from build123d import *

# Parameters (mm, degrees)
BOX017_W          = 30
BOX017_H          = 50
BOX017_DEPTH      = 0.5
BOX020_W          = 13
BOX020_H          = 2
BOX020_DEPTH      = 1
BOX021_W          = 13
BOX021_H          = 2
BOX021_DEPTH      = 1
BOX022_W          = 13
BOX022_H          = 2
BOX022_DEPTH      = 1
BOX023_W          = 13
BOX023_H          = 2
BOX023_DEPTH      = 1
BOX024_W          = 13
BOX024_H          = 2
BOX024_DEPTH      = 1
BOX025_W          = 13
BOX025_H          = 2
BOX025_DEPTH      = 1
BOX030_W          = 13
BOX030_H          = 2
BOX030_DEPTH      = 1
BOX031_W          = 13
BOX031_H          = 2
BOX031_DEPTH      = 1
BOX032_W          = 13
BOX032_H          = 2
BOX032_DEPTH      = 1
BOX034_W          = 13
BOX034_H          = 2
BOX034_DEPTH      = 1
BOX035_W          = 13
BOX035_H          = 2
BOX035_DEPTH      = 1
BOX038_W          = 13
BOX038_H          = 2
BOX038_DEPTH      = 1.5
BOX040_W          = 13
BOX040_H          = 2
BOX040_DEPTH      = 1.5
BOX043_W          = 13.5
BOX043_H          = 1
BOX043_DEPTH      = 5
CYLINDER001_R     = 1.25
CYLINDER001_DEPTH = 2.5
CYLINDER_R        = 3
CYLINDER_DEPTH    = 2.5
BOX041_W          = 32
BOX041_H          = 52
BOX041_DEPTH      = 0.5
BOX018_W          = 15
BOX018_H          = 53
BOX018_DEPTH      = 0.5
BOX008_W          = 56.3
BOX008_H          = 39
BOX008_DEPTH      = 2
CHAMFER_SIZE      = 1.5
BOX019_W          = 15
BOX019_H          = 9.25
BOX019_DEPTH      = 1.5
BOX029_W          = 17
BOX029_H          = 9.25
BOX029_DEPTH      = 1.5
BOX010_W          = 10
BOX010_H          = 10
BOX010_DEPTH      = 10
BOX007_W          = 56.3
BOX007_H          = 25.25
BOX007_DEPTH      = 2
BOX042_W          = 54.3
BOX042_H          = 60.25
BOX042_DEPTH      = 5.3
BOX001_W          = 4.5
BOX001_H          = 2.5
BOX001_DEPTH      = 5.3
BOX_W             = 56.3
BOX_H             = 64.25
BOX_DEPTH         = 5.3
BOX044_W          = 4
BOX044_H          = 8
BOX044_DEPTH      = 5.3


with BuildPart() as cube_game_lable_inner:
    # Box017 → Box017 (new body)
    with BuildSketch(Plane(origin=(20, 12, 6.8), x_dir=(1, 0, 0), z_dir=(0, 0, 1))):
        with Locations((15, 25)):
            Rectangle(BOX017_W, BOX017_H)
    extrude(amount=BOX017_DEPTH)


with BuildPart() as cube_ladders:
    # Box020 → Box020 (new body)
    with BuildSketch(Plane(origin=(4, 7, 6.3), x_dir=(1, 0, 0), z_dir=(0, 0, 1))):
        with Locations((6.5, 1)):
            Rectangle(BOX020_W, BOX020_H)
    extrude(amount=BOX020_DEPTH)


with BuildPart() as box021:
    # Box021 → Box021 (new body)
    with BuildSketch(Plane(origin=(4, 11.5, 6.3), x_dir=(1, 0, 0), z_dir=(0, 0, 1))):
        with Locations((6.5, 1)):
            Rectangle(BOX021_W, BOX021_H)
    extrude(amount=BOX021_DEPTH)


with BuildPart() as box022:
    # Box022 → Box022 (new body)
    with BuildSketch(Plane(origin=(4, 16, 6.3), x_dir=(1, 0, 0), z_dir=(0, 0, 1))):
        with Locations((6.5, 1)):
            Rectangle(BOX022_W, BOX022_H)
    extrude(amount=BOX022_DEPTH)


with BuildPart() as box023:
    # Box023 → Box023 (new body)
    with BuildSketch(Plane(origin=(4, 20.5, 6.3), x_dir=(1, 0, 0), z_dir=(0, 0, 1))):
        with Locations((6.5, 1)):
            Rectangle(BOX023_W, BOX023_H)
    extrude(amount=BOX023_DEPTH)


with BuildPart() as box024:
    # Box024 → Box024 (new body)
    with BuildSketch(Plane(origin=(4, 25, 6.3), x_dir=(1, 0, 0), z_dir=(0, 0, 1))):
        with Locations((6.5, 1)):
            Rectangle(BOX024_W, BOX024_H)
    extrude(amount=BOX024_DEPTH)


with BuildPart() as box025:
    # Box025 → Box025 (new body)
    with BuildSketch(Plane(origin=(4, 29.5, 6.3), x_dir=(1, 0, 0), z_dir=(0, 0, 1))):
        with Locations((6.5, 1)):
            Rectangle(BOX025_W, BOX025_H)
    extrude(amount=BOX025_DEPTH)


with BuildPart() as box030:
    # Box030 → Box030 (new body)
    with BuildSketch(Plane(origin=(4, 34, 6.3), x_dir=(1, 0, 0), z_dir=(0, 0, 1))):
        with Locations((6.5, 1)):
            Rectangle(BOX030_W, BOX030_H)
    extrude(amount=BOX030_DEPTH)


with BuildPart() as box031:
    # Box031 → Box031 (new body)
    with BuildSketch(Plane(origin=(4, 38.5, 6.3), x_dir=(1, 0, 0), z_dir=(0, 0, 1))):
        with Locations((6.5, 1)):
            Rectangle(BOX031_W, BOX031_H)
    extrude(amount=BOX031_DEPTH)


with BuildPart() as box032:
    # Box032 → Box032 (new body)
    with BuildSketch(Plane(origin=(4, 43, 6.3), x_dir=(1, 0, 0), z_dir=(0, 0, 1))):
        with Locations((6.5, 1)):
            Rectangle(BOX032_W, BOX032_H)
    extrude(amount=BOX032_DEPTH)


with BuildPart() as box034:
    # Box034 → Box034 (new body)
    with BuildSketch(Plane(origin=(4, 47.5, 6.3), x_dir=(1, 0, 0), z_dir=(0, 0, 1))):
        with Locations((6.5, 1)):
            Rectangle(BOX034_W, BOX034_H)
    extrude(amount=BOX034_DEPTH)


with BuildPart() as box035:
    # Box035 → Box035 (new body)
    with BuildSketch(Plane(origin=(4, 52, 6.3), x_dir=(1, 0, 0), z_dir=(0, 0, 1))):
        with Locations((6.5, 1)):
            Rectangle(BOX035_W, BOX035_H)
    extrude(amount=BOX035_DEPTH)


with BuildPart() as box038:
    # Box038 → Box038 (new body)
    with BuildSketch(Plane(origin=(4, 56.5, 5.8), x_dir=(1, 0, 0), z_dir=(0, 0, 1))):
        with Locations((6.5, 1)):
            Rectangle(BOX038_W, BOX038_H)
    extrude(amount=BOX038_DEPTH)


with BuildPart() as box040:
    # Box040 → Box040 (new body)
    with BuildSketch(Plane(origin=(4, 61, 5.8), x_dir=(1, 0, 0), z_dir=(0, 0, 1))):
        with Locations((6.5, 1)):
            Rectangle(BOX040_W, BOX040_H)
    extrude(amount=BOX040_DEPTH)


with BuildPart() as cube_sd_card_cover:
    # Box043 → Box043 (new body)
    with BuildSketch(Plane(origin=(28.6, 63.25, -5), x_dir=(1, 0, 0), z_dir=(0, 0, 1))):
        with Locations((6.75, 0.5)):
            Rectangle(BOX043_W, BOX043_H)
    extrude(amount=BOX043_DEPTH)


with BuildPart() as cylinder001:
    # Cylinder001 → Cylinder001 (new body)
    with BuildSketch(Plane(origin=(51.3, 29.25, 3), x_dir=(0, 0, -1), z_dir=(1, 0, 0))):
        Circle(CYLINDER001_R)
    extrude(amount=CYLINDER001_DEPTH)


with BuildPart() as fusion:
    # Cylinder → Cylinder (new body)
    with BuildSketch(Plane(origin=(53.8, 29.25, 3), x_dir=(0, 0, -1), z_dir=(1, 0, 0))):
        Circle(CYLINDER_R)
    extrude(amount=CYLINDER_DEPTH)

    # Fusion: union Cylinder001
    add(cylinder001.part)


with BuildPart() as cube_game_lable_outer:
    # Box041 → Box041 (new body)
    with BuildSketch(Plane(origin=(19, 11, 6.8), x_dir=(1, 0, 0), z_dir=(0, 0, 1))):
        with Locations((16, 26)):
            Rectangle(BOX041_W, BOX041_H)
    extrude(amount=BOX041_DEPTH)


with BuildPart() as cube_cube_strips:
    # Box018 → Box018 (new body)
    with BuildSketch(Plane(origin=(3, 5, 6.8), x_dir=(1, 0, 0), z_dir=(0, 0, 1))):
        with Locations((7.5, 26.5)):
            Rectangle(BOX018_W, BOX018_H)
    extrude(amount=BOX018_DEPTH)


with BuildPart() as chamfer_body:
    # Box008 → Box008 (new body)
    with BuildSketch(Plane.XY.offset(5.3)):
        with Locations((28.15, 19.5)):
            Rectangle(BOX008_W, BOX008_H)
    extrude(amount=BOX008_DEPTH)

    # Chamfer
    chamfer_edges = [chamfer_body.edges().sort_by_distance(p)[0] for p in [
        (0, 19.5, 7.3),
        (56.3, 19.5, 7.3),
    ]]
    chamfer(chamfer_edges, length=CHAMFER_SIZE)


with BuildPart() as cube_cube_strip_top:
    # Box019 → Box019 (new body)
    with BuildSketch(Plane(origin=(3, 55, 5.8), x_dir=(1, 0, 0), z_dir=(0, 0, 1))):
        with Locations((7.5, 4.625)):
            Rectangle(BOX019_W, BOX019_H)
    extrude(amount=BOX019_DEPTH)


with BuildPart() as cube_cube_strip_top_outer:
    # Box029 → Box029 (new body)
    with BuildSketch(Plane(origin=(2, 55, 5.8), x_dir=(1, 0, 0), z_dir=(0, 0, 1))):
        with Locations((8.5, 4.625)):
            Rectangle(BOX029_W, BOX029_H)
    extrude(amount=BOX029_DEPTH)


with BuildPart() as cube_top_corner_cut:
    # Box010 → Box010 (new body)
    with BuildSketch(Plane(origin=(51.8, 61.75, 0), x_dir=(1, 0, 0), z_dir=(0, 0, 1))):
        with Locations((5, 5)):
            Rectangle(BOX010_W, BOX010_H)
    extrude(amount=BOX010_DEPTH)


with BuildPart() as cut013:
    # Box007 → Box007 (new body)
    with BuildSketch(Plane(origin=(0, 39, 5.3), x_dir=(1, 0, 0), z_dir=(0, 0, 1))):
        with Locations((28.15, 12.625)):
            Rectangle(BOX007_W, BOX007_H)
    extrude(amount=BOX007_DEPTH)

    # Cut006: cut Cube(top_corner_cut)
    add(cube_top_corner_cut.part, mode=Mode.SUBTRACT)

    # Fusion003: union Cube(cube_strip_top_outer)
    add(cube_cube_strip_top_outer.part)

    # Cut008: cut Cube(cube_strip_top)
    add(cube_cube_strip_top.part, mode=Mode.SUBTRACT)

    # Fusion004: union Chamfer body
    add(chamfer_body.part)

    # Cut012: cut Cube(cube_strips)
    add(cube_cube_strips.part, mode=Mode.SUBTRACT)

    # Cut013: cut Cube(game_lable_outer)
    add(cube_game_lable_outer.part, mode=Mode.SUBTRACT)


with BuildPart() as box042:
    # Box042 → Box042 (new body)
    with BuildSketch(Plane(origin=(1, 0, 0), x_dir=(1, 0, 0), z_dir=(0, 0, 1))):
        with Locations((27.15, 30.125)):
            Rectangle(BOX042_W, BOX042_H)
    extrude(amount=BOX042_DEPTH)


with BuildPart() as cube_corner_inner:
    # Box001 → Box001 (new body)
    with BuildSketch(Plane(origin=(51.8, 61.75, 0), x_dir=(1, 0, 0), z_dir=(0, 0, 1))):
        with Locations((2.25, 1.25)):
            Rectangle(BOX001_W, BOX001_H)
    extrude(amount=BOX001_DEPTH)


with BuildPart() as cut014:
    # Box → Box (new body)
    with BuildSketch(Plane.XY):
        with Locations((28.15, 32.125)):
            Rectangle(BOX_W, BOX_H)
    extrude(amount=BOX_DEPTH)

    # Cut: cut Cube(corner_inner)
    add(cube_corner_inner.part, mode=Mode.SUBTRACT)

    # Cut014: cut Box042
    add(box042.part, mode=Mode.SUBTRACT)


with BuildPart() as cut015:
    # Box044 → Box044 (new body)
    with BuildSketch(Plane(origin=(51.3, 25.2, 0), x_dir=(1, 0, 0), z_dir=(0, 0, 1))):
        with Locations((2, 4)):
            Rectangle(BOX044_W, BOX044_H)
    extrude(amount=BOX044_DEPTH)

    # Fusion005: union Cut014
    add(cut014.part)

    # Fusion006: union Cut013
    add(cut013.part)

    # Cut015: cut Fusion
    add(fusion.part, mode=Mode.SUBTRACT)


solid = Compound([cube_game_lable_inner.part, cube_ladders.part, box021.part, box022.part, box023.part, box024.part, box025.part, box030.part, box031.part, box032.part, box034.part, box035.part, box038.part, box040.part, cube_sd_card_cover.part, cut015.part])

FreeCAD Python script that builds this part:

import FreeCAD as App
import Part
import Sketcher
Q = App.Units.Quantity


def edges_at(feature, points):
    """Names of the edges that pass closest to the given points."""
    edges = feature.Shape.Edges
    near = lambda p: min(range(len(edges)), key=lambda i: edges[i].distToShape(Part.Vertex(*p))[0])
    return sorted({f"Edge{near(p) + 1}" for p in points})

doc = App.newDocument("Part")
body = doc.addObject("PartDesign::Body", "Body")

sketch1 = body.newObject("Sketcher::SketchObject", "Sketch")
sketch1.AttachmentSupport = (doc.getObject("XY_Plane"), [""])
sketch1.MapMode = "FlatFace"
sketch1.AttachmentOffset = App.Placement(App.Vector(0, 0, 6.8), App.Rotation())
sketch1.addGeometry([
    Part.LineSegment(App.Vector(20, 62, 0), App.Vector(20, 12, 0)),
    Part.LineSegment(App.Vector(20, 12, 0), App.Vector(50, 12, 0)),
    Part.LineSegment(App.Vector(50, 12, 0), App.Vector(50, 62, 0)),
    Part.LineSegment(App.Vector(50, 62, 0), App.Vector(20, 62, 0)),
], False)
sketch1.addConstraint([
    Sketcher.Constraint("Coincident", 0, 2, 1, 1),
    Sketcher.Constraint("Coincident", 1, 2, 2, 1),
    Sketcher.Constraint("Coincident", 2, 2, 3, 1),
    Sketcher.Constraint("Coincident", 3, 2, 0, 1),
    Sketcher.Constraint("Vertical", 0),
    Sketcher.Constraint("Horizontal", 1),
    Sketcher.Constraint("Vertical", 2),
    Sketcher.Constraint("Horizontal", 3),
    Sketcher.Constraint("DistanceX", 1, 1, 1, 2, Q("30 mm")),
    Sketcher.Constraint("DistanceY", 0, 2, 0, 1, Q("50 mm")),
    Sketcher.Constraint("DistanceX", -1, 1, 0, 2, Q("20 mm")),
    Sketcher.Constraint("DistanceY", -1, 1, 0, 2, Q("12 mm")),
])
pad1 = body.newObject("PartDesign::Pad", "Pad")
pad1.Profile = sketch1
pad1.Length = 0.5
body2 = doc.addObject("PartDesign::Body", "Body001")

sketch2 = body2.newObject("Sketcher::SketchObject", "Sketch001")
sketch2.AttachmentSupport = (doc.getObject("XY_Plane001"), [""])
sketch2.MapMode = "FlatFace"
sketch2.AttachmentOffset = App.Placement(App.Vector(0, 0, 6.3), App.Rotation())
sketch2.addGeometry([
    Part.LineSegment(App.Vector(4, 9, 0), App.Vector(4, 7, 0)),
    Part.LineSegment(App.Vector(4, 7, 0), App.Vector(17, 7, 0)),
    Part.LineSegment(App.Vector(17, 7, 0), App.Vector(17, 9, 0)),
    Part.LineSegment(App.Vector(17, 9, 0), App.Vector(4, 9, 0)),
], False)
sketch2.addConstraint([
    Sketcher.Constraint("Coincident", 0, 2, 1, 1),
    Sketcher.Constraint("Coincident", 1, 2, 2, 1),
    Sketcher.Constraint("Coincident", 2, 2, 3, 1),
    Sketcher.Constraint("Coincident", 3, 2, 0, 1),
    Sketcher.Constraint("Vertical", 0),
    Sketcher.Constraint("Horizontal", 1),
    Sketcher.Constraint("Vertical", 2),
    Sketcher.Constraint("Horizontal", 3),
    Sketcher.Constraint("DistanceX", 1, 1, 1, 2, Q("13 mm")),
    Sketcher.Constraint("DistanceY", 0, 2, 0, 1, Q("2 mm")),
    Sketcher.Constraint("DistanceX", -1, 1, 0, 2, Q("4 mm")),
    Sketcher.Constraint("DistanceY", -1, 1, 0, 2, Q("7 mm")),
])
pad2 = body2.newObject("PartDesign::Pad", "Pad001")
pad2.Profile = sketch2
pad2.Length = 1
body3 = doc.addObject("PartDesign::Body", "Body002")

sketch3 = body3.newObject("Sketcher::SketchObject", "Sketch002")
sketch3.AttachmentSupport = (doc.getObject("XY_Plane002"), [""])
sketch3.MapMode = "FlatFace"
sketch3.AttachmentOffset = App.Placement(App.Vector(0, 0, 6.3), App.Rotation())
sketch3.addGeometry([
    Part.LineSegment(App.Vector(4, 13.5, 0), App.Vector(4, 11.5, 0)),
    Part.LineSegment(App.Vector(4, 11.5, 0), App.Vector(17, 11.5, 0)),
    Part.LineSegment(App.Vector(17, 11.5, 0), App.Vector(17, 13.5, 0)),
    Part.LineSegment(App.Vector(17, 13.5, 0), App.Vector(4, 13.5, 0)),
], False)
sketch3.addConstraint([
    Sketcher.Constraint("Coincident", 0, 2, 1, 1),
    Sketcher.Constraint("Coincident", 1, 2, 2, 1),
    Sketcher.Constraint("Coincident", 2, 2, 3, 1),
    Sketcher.Constraint("Coincident", 3, 2, 0, 1),
    Sketcher.Constraint("Vertical", 0),
    Sketcher.Constraint("Horizontal", 1),
    Sketcher.Constraint("Vertical", 2),
    Sketcher.Constraint("Horizontal", 3),
    Sketcher.Constraint("DistanceX", 1, 1, 1, 2, Q("13 mm")),
    Sketcher.Constraint("DistanceY", 0, 2, 0, 1, Q("2 mm")),
    Sketcher.Constraint("DistanceX", -1, 1, 0, 2, Q("4 mm")),
    Sketcher.Constraint("DistanceY", -1, 1, 0, 2, Q("11.5 mm")),
])
pad3 = body3.newObject("PartDesign::Pad", "Pad002")
pad3.Profile = sketch3
pad3.Length = 1
body4 = doc.addObject("PartDesign::Body", "Body003")

sketch4 = body4.newObject("Sketcher::SketchObject", "Sketch003")
sketch4.AttachmentSupport = (doc.getObject("XY_Plane003"), [""])
sketch4.MapMode = "FlatFace"
sketch4.AttachmentOffset = App.Placement(App.Vector(0, 0, 6.3), App.Rotation())
sketch4.addGeometry([
    Part.LineSegment(App.Vector(4, 18, 0), App.Vector(4, 16, 0)),
    Part.LineSegment(App.Vector(4, 16, 0), App.Vector(17, 16, 0)),
    Part.LineSegment(App.Vector(17, 16, 0), App.Vector(17, 18, 0)),
    Part.LineSegment(App.Vector(17, 18, 0), App.Vector(4, 18, 0)),
], False)
sketch4.addConstraint([
    Sketcher.Constraint("Coincident", 0, 2, 1, 1),
    Sketcher.Constraint("Coincident", 1, 2, 2, 1),
    Sketcher.Constraint("Coincident", 2, 2, 3, 1),
    Sketcher.Constraint("Coincident", 3, 2, 0, 1),
    Sketcher.Constraint("Vertical", 0),
    Sketcher.Constraint("Horizontal", 1),
    Sketcher.Constraint("Vertical", 2),
    Sketcher.Constraint("Horizontal", 3),
    Sketcher.Constraint("DistanceX", 1, 1, 1, 2, Q("13 mm")),
    Sketcher.Constraint("DistanceY", 0, 2, 0, 1, Q("2 mm")),
    Sketcher.Constraint("DistanceX", -1, 1, 0, 2, Q("4 mm")),
    Sketcher.Constraint("DistanceY", -1, 1, 0, 2, Q("16 mm")),
])
pad4 = body4.newObject("PartDesign::Pad", "Pad003")
pad4.Profile = sketch4
pad4.Length = 1
body5 = doc.addObject("PartDesign::Body", "Body004")

sketch5 = body5.newObject("Sketcher::SketchObject", "Sketch004")
sketch5.AttachmentSupport = (doc.getObject("XY_Plane004"), [""])
sketch5.MapMode = "FlatFace"
sketch5.AttachmentOffset = App.Placement(App.Vector(0, 0, 6.3), App.Rotation())
sketch5.addGeometry([
    Part.LineSegment(App.Vector(4, 22.5, 0), App.Vector(4, 20.5, 0)),
    Part.LineSegment(App.Vector(4, 20.5, 0), App.Vector(17, 20.5, 0)),
    Part.LineSegment(App.Vector(17, 20.5, 0), App.Vector(17, 22.5, 0)),
    Part.LineSegment(App.Vector(17, 22.5, 0), App.Vector(4, 22.5, 0)),
], False)
sketch5.addConstraint([
    Sketcher.Constraint("Coincident", 0, 2, 1, 1),
    Sketcher.Constraint("Coincident", 1, 2, 2, 1),
    Sketcher.Constraint("Coincident", 2, 2, 3, 1),
    Sketcher.Constraint("Coincident", 3, 2, 0, 1),
    Sketcher.Constraint("Vertical", 0),
    Sketcher.Constraint("Horizontal", 1),
    Sketcher.Constraint("Vertical", 2),
    Sketcher.Constraint("Horizontal", 3),
    Sketcher.Constraint("DistanceX", 1, 1, 1, 2, Q("13 mm")),
    Sketcher.Constraint("DistanceY", 0, 2, 0, 1, Q("2 mm")),
    Sketcher.Constraint("DistanceX", -1, 1, 0, 2, Q("4 mm")),
    Sketcher.Constraint("DistanceY", -1, 1, 0, 2, Q("20.5 mm")),
])
pad5 = body5.newObject("PartDesign::Pad", "Pad004")
pad5.Profile = sketch5
pad5.Length = 1
body6 = doc.addObject("PartDesign::Body", "Body005")

sketch6 = body6.newObject("Sketcher::SketchObject", "Sketch005")
sketch6.AttachmentSupport = (doc.getObject("XY_Plane005"), [""])
sketch6.MapMode = "FlatFace"
sketch6.AttachmentOffset = App.Placement(App.Vector(0, 0, 6.3), App.Rotation())
sketch6.addGeometry([
    Part.LineSegment(App.Vector(4, 27, 0), App.Vector(4, 25, 0)),
    Part.LineSegment(App.Vector(4, 25, 0), App.Vector(17, 25, 0)),
    Part.LineSegment(App.Vector(17, 25, 0), App.Vector(17, 27, 0)),
    Part.LineSegment(App.Vector(17, 27, 0), App.Vector(4, 27, 0)),
], False)
sketch6.addConstraint([
    Sketcher.Constraint("Coincident", 0, 2, 1, 1),
    Sketcher.Constraint("Coincident", 1, 2, 2, 1),
    Sketcher.Constraint("Coincident", 2, 2, 3, 1),
    Sketcher.Constraint("Coincident", 3, 2, 0, 1),
    Sketcher.Constraint("Vertical", 0),
    Sketcher.Constraint("Horizontal", 1),
    Sketcher.Constraint("Vertical", 2),
    Sketcher.Constraint("Horizontal", 3),
    Sketcher.Constraint("DistanceX", 1, 1, 1, 2, Q("13 mm")),
    Sketcher.Constraint("DistanceY", 0, 2, 0, 1, Q("2 mm")),
    Sketcher.Constraint("DistanceX", -1, 1, 0, 2, Q("4 mm")),
    Sketcher.Constraint("DistanceY", -1, 1, 0, 2, Q("25 mm")),
])
pad6 = body6.newObject("PartDesign::Pad", "Pad005")
pad6.Profile = sketch6
pad6.Length = 1
body7 = doc.addObject("PartDesign::Body", "Body006")

sketch7 = body7.newObject("Sketcher::SketchObject", "Sketch006")
sketch7.AttachmentSupport = (doc.getObject("XY_Plane006"), [""])
sketch7.MapMode = "FlatFace"
sketch7.AttachmentOffset = App.Placement(App.Vector(0, 0, 6.3), App.Rotation())
sketch7.addGeometry([
    Part.LineSegment(App.Vector(4, 31.5, 0), App.Vector(4, 29.5, 0)),
    Part.LineSegment(App.Vector(4, 29.5, 0), App.Vector(17, 29.5, 0)),
    Part.LineSegment(App.Vector(17, 29.5, 0), App.Vector(17, 31.5, 0)),
    Part.LineSegment(App.Vector(17, 31.5, 0), App.Vector(4, 31.5, 0)),
], False)
sketch7.addConstraint([
    Sketcher.Constraint("Coincident", 0, 2, 1, 1),
    Sketcher.Constraint("Coincident", 1, 2, 2, 1),
    Sketcher.Constraint("Coincident", 2, 2, 3, 1),
    Sketcher.Constraint("Coincident", 3, 2, 0, 1),
    Sketcher.Constraint("Vertical", 0),
    Sketcher.Constraint("Horizontal", 1),
    Sketcher.Constraint("Vertical", 2),
    Sketcher.Constraint("Horizontal", 3),
    Sketcher.Constraint("DistanceX", 1, 1, 1, 2, Q("13 mm")),
    Sketcher.Constraint("DistanceY", 0, 2, 0, 1, Q("2 mm")),
    Sketcher.Constraint("DistanceX", -1, 1, 0, 2, Q("4 mm")),
    Sketcher.Constraint("DistanceY", -1, 1, 0, 2, Q("29.5 mm")),
])
pad7 = body7.newObject("PartDesign::Pad", "Pad006")
pad7.Profile = sketch7
pad7.Length = 1
body8 = doc.addObject("PartDesign::Body", "Body007")

sketch8 = body8.newObject("Sketcher::SketchObject", "Sketch007")
sketch8.AttachmentSupport = (doc.getObject("XY_Plane007"), [""])
sketch8.MapMode = "FlatFace"
sketch8.AttachmentOffset = App.Placement(App.Vector(0, 0, 6.3), App.Rotation())
sketch8.addGeometry([
    Part.LineSegment(App.Vector(4, 36, 0), App.Vector(4, 34, 0)),
    Part.LineSegment(App.Vector(4, 34, 0), App.Vector(17, 34, 0)),
    Part.LineSegment(App.Vector(17, 34, 0), App.Vector(17, 36, 0)),
    Part.LineSegment(App.Vector(17, 36, 0), App.Vector(4, 36, 0)),
], False)
sketch8.addConstraint([
    Sketcher.Constraint("Coincident", 0, 2, 1, 1),
    Sketcher.Constraint("Coincident", 1, 2, 2, 1),
    Sketcher.Constraint("Coincident", 2, 2, 3, 1),
    Sketcher.Constraint("Coincident", 3, 2, 0, 1),
    Sketcher.Constraint("Vertical", 0),
    Sketcher.Constraint("Horizontal", 1),
    Sketcher.Constraint("Vertical", 2),
    Sketcher.Constraint("Horizontal", 3),
    Sketcher.Constraint("DistanceX", 1, 1, 1, 2, Q("13 mm")),
    Sketcher.Constraint("DistanceY", 0, 2, 0, 1, Q("2 mm")),
    Sketcher.Constraint("DistanceX", -1, 1, 0, 2, Q("4 mm")),
    Sketcher.Constraint("DistanceY", -1, 1, 0, 2, Q("34 mm")),
])
pad8 = body8.newObject("PartDesign::Pad", "Pad007")
pad8.Profile = sketch8
pad8.Length = 1
body9 = doc.addObject("PartDesign::Body", "Body008")

sketch9 = body9.newObject("Sketcher::SketchObject", "Sketch008")
sketch9.AttachmentSupport = (doc.getObject("XY_Plane008"), [""])
sketch9.MapMode = "FlatFace"
sketch9.AttachmentOffset = App.Placement(App.Vector(0, 0, 6.3), App.Rotation())
sketch9.addGeometry([
    Part.LineSegment(App.Vector(4, 40.5, 0), App.Vector(4, 38.5, 0)),
    Part.LineSegment(App.Vector(4, 38.5, 0), App.Vector(17, 38.5, 0)),
    Part.LineSegment(App.Vector(17, 38.5, 0), App.Vector(17, 40.5, 0)),
    Part.LineSegment(App.Vector(17, 40.5, 0), App.Vector(4, 40.5, 0)),
], False)
sketch9.addConstraint([
    Sketcher.Constraint("Coincident", 0, 2, 1, 1),
    Sketcher.Constraint("Coincident", 1, 2, 2, 1),
    Sketcher.Constraint("Coincident", 2, 2, 3, 1),
    Sketcher.Constraint("Coincident", 3, 2, 0, 1),
    Sketcher.Constraint("Vertical", 0),
    Sketcher.Constraint("Horizontal", 1),
    Sketcher.Constraint("Vertical", 2),
    Sketcher.Constraint("Horizontal", 3),
    Sketcher.Constraint("DistanceX", 1, 1, 1, 2, Q("13 mm")),
    Sketcher.Constraint("DistanceY", 0, 2, 0, 1, Q("2 mm")),
    Sketcher.Constraint("DistanceX", -1, 1, 0, 2, Q("4 mm")),
    Sketcher.Constraint("DistanceY", -1, 1, 0, 2, Q("38.5 mm")),
])
pad9 = body9.newObject("PartDesign::Pad", "Pad008")
pad9.Profile = sketch9
pad9.Length = 1
body10 = doc.addObject("PartDesign::Body", "Body009")

sketch10 = body10.newObject("Sketcher::SketchObject", "Sketch009")
sketch10.AttachmentSupport = (doc.getObject("XY_Plane009"), [""])
sketch10.MapMode = "FlatFace"
sketch10.AttachmentOffset = App.Placement(App.Vector(0, 0, 6.3), App.Rotation())
sketch10.addGeometry([
    Part.LineSegment(App.Vector(4, 45, 0), App.Vector(4, 43, 0)),
    Part.LineSegment(App.Vector(4, 43, 0), App.Vector(17, 43, 0)),
    Part.LineSegment(App.Vector(17, 43, 0), App.Vector(17, 45, 0)),
    Part.LineSegment(App.Vector(17, 45, 0), App.Vector(4, 45, 0)),
], False)
sketch10.addConstraint([
    Sketcher.Constraint("Coincident", 0, 2, 1, 1),
    Sketcher.Constraint("Coincident", 1, 2, 2, 1),
    Sketcher.Constraint("Coincident", 2, 2, 3, 1),
    Sketcher.Constraint("Coincident", 3, 2, 0, 1),
    Sketcher.Constraint("Vertical", 0),
    Sketcher.Constraint("Horizontal", 1),
    Sketcher.Constraint("Vertical", 2),
    Sketcher.Constraint("Horizontal", 3),
    Sketcher.Constraint("DistanceX", 1, 1, 1, 2, Q("13 mm")),
    Sketcher.Constraint("DistanceY", 0, 2, 0, 1, Q("2 mm")),
    Sketcher.Constraint("DistanceX", -1, 1, 0, 2, Q("4 mm")),
    Sketcher.Constraint("DistanceY", -1, 1, 0, 2, Q("43 mm")),
])
pad10 = body10.newObject("PartDesign::Pad", "Pad009")
pad10.Profile = sketch10
pad10.Length = 1
body11 = doc.addObject("PartDesign::Body", "Body010")

sketch11 = body11.newObject("Sketcher::SketchObject", "Sketch010")
sketch11.AttachmentSupport = (doc.getObject("XY_Plane010"), [""])
sketch11.MapMode = "FlatFace"
sketch11.AttachmentOffset = App.Placement(App.Vector(0, 0, 6.3), App.Rotation())
sketch11.addGeometry([
    Part.LineSegment(App.Vector(4, 49.5, 0), App.Vector(4, 47.5, 0)),
    Part.LineSegment(App.Vector(4, 47.5, 0), App.Vector(17, 47.5, 0)),
    Part.LineSegment(App.Vector(17, 47.5, 0), App.Vector(17, 49.5, 0)),
    Part.LineSegment(App.Vector(17, 49.5, 0), App.Vector(4, 49.5, 0)),
], False)
sketch11.addConstraint([
    Sketcher.Constraint("Coincident", 0, 2, 1, 1),
    Sketcher.Constraint("Coincident", 1, 2, 2, 1),
    Sketcher.Constraint("Coincident", 2, 2, 3, 1),
    Sketcher.Constraint("Coincident", 3, 2, 0, 1),
    Sketcher.Constraint("Vertical", 0),
    Sketcher.Constraint("Horizontal", 1),
    Sketcher.Constraint("Vertical", 2),
    Sketcher.Constraint("Horizontal", 3),
    Sketcher.Constraint("DistanceX", 1, 1, 1, 2, Q("13 mm")),
    Sketcher.Constraint("DistanceY", 0, 2, 0, 1, Q("2 mm")),
    Sketcher.Constraint("DistanceX", -1, 1, 0, 2, Q("4 mm")),
    Sketcher.Constraint("DistanceY", -1, 1, 0, 2, Q("47.5 mm")),
])
pad11 = body11.newObject("PartDesign::Pad", "Pad010")
pad11.Profile = sketch11
pad11.Length = 1
body12 = doc.addObject("PartDesign::Body", "Body011")

sketch12 = body12.newObject("Sketcher::SketchObject", "Sketch011")
sketch12.AttachmentSupport = (doc.getObject("XY_Plane011"), [""])
sketch12.MapMode = "FlatFace"
sketch12.AttachmentOffset = App.Placement(App.Vector(0, 0, 6.3), App.Rotation())
sketch12.addGeometry([
    Part.LineSegment(App.Vector(4, 54, 0), App.Vector(4, 52, 0)),
    Part.LineSegment(App.Vector(4, 52, 0), App.Vector(17, 52, 0)),
    Part.LineSegment(App.Vector(17, 52, 0), App.Vector(17, 54, 0)),
    Part.LineSegment(App.Vector(17, 54, 0), App.Vector(4, 54, 0)),
], False)
sketch12.addConstraint([
    Sketcher.Constraint("Coincident", 0, 2, 1, 1),
    Sketcher.Constraint("Coincident", 1, 2, 2, 1),
    Sketcher.Constraint("Coincident", 2, 2, 3, 1),
    Sketcher.Constraint("Coincident", 3, 2, 0, 1),
    Sketcher.Constraint("Vertical", 0),
    Sketcher.Constraint("Horizontal", 1),
    Sketcher.Constraint("Vertical", 2),
    Sketcher.Constraint("Horizontal", 3),
    Sketcher.Constraint("DistanceX", 1, 1, 1, 2, Q("13 mm")),
    Sketcher.Constraint("DistanceY", 0, 2, 0, 1, Q("2 mm")),
    Sketcher.Constraint("DistanceX", -1, 1, 0, 2, Q("4 mm")),
    Sketcher.Constraint("DistanceY", -1, 1, 0, 2, Q("52 mm")),
])
pad12 = body12.newObject("PartDesign::Pad", "Pad011")
pad12.Profile = sketch12
pad12.Length = 1
body13 = doc.addObject("PartDesign::Body", "Body012")

sketch13 = body13.newObject("Sketcher::SketchObject", "Sketch012")
sketch13.AttachmentSupport = (doc.getObject("XY_Plane012"), [""])
sketch13.MapMode = "FlatFace"
sketch13.AttachmentOffset = App.Placement(App.Vector(0, 0, 5.8), App.Rotation())
sketch13.addGeometry([
    Part.LineSegment(App.Vector(4, 58.5, 0), App.Vector(4, 56.5, 0)),
    Part.LineSegment(App.Vector(4, 56.5, 0), App.Vector(17, 56.5, 0)),
    Part.LineSegment(App.Vector(17, 56.5, 0), App.Vector(17, 58.5, 0)),
    Part.LineSegment(App.Vector(17, 58.5, 0), App.Vector(4, 58.5, 0)),
], False)
sketch13.addConstraint([
    Sketcher.Constraint("Coincident", 0, 2, 1, 1),
    Sketcher.Constraint("Coincident", 1, 2, 2, 1),
    Sketcher.Constraint("Coincident", 2, 2, 3, 1),
    Sketcher.Constraint("Coincident", 3, 2, 0, 1),
    Sketcher.Constraint("Vertical", 0),
    Sketcher.Constraint("Horizontal", 1),
    Sketcher.Constraint("Vertical", 2),
    Sketcher.Constraint("Horizontal", 3),
    Sketcher.Constraint("DistanceX", 1, 1, 1, 2, Q("13 mm")),
    Sketcher.Constraint("DistanceY", 0, 2, 0, 1, Q("2 mm")),
    Sketcher.Constraint("DistanceX", -1, 1, 0, 2, Q("4 mm")),
    Sketcher.Constraint("DistanceY", -1, 1, 0, 2, Q("56.5 mm")),
])
pad13 = body13.newObject("PartDesign::Pad", "Pad012")
pad13.Profile = sketch13
pad13.Length = 1.5
body14 = doc.addObject("PartDesign::Body", "Body013")

sketch14 = body14.newObject("Sketcher::SketchObject", "Sketch013")
sketch14.AttachmentSupport = (doc.getObject("XY_Plane013"), [""])
sketch14.MapMode = "FlatFace"
sketch14.AttachmentOffset = App.Placement(App.Vector(0, 0, 5.8), App.Rotation())
sketch14.addGeometry([
    Part.LineSegment(App.Vector(4, 63, 0), App.Vector(4, 61, 0)),
    Part.LineSegment(App.Vector(4, 61, 0), App.Vector(17, 61, 0)),
    Part.LineSegment(App.Vector(17, 61, 0), App.Vector(17, 63, 0)),
    Part.LineSegment(App.Vector(17, 63, 0), App.Vector(4, 63, 0)),
], False)
sketch14.addConstraint([
    Sketcher.Constraint("Coincident", 0, 2, 1, 1),
    Sketcher.Constraint("Coincident", 1, 2, 2, 1),
    Sketcher.Constraint("Coincident", 2, 2, 3, 1),
    Sketcher.Constraint("Coincident", 3, 2, 0, 1),
    Sketcher.Constraint("Vertical", 0),
    Sketcher.Constraint("Horizontal", 1),
    Sketcher.Constraint("Vertical", 2),
    Sketcher.Constraint("Horizontal", 3),
    Sketcher.Constraint("DistanceX", 1, 1, 1, 2, Q("13 mm")),
    Sketcher.Constraint("DistanceY", 0, 2, 0, 1, Q("2 mm")),
    Sketcher.Constraint("DistanceX", -1, 1, 0, 2, Q("4 mm")),
    Sketcher.Constraint("DistanceY", -1, 1, 0, 2, Q("61 mm")),
])
pad14 = body14.newObject("PartDesign::Pad", "Pad013")
pad14.Profile = sketch14
pad14.Length = 1.5
body15 = doc.addObject("PartDesign::Body", "Body014")

sketch15 = body15.newObject("Sketcher::SketchObject", "Sketch014")
sketch15.AttachmentSupport = (doc.getObject("XY_Plane014"), [""])
sketch15.MapMode = "FlatFace"
sketch15.AttachmentOffset = App.Placement(App.Vector(0, 0, -5), App.Rotation())
sketch15.addGeometry([
    Part.LineSegment(App.Vector(28.6, 64.2, 0), App.Vector(28.6, 63.2, 0)),
    Part.LineSegment(App.Vector(28.6, 63.2, 0), App.Vector(42.1, 63.2, 0)),
    Part.LineSegment(App.Vector(42.1, 63.2, 0), App.Vector(42.1, 64.2, 0)),
    Part.LineSegment(App.Vector(42.1, 64.2, 0), App.Vector(28.6, 64.2, 0)),
], False)
sketch15.addConstraint([
    Sketcher.Constraint("Coincident", 0, 2, 1, 1),
    Sketcher.Constraint("Coincident", 1, 2, 2, 1),
    Sketcher.Constraint("Coincident", 2, 2, 3, 1),
    Sketcher.Constraint("Coincident", 3, 2, 0, 1),
    Sketcher.Constraint("Vertical", 0),
    Sketcher.Constraint("Horizontal", 1),
    Sketcher.Constraint("Vertical", 2),
    Sketcher.Constraint("Horizontal", 3),
    Sketcher.Constraint("DistanceY", 0, 2, 0, 1, Q("1 mm")),
    Sketcher.Constraint("DistanceX", 1, 1, 1, 2, Q("13.5 mm")),
    Sketcher.Constraint("DistanceX", -1, 1, 0, 2, Q("28.6 mm")),
    Sketcher.Constraint("DistanceY", -1, 1, 0, 2, Q("63.25 mm")),
])
pad15 = body15.newObject("PartDesign::Pad", "Pad014")
pad15.Profile = sketch15
pad15.Length = 5
body16 = doc.addObject("PartDesign::Body", "Body015")

sketch16 = body16.newObject("Sketcher::SketchObject", "Sketch015")
sketch16.AttachmentSupport = (doc.getObject("YZ_Plane015"), [""])
sketch16.MapMode = "FlatFace"
sketch16.AttachmentOffset = App.Placement(App.Vector(0, 0, 51.3), App.Rotation())
sketch16.addGeometry(Part.Circle(App.Vector(29.2, 3, 0), App.Vector(0, 0, 1), 1.2), False)
sketch16.addConstraint([
    Sketcher.Constraint("Diameter", 0, Q("2.5 mm")),
    Sketcher.Constraint("DistanceY", -1, 1, 0, 3, Q("3 mm")),
    Sketcher.Constraint("DistanceX", -1, 1, 0, 3, Q("29.25 mm")),
])
pad16 = body16.newObject("PartDesign::Pad", "Pad015")
pad16.Profile = sketch16
pad16.Length = 2.5
body17 = doc.addObject("PartDesign::Body", "Body016")

sketch17 = body17.newObject("Sketcher::SketchObject", "Sketch016")
sketch17.AttachmentSupport = (doc.getObject("YZ_Plane016"), [""])
sketch17.MapMode = "FlatFace"
sketch17.AttachmentOffset = App.Placement(App.Vector(0, 0, 53.8), App.Rotation())
sketch17.addGeometry(Part.Circle(App.Vector(29.2, 3, 0), App.Vector(0, 0, 1), 3), False)
sketch17.addConstraint([
    Sketcher.Constraint("Diameter", 0, Q("6 mm")),
    Sketcher.Constraint("DistanceY", -1, 1, 0, 3, Q("3 mm")),
    Sketcher.Constraint("DistanceX", -1, 1, 0, 3, Q("29.25 mm")),
])
pad17 = body17.newObject("PartDesign::Pad", "Pad016")
pad17.Profile = sketch17
pad17.Length = 2.5
doc.recompute()

boolean = body17.newObject("PartDesign::Boolean", "Boolean")
boolean.Type = "Fuse"
boolean.addObjects([body16])
body18 = doc.addObject("PartDesign::Body", "Body017")

sketch18 = body18.newObject("Sketcher::SketchObject", "Sketch017")
sketch18.AttachmentSupport = (doc.getObject("XY_Plane017"), [""])
sketch18.MapMode = "FlatFace"
sketch18.AttachmentOffset = App.Placement(App.Vector(0, 0, 6.8), App.Rotation())
sketch18.addGeometry([
    Part.LineSegment(App.Vector(19, 63, 0), App.Vector(19, 11, 0)),
    Part.LineSegment(App.Vector(19, 11, 0), App.Vector(51, 11, 0)),
    Part.LineSegment(App.Vector(51, 11, 0), App.Vector(51, 63, 0)),
    Part.LineSegment(App.Vector(51, 63, 0), App.Vector(19, 63, 0)),
], False)
sketch18.addConstraint([
    Sketcher.Constraint("Coincident", 0, 2, 1, 1),
    Sketcher.Constraint("Coincident", 1, 2, 2, 1),
    Sketcher.Constraint("Coincident", 2, 2, 3, 1),
    Sketcher.Constraint("Coincident", 3, 2, 0, 1),
    Sketcher.Constraint("Vertical", 0),
    Sketcher.Constraint("Horizontal", 1),
    Sketcher.Constraint("Vertical", 2),
    Sketcher.Constraint("Horizontal", 3),
    Sketcher.Constraint("DistanceX", 1, 1, 1, 2, Q("32 mm")),
    Sketcher.Constraint("DistanceY", 0, 2, 0, 1, Q("52 mm")),
    Sketcher.Constraint("DistanceX", -1, 1, 0, 2, Q("19 mm")),
    Sketcher.Constraint("DistanceY", -1, 1, 0, 2, Q("11 mm")),
])
pad18 = body18.newObject("PartDesign::Pad", "Pad017")
pad18.Profile = sketch18
pad18.Length = 0.5
body19 = doc.addObject("PartDesign::Body", "Body018")

sketch19 = body19.newObject("Sketcher::SketchObject", "Sketch018")
sketch19.AttachmentSupport = (doc.getObject("XY_Plane018"), [""])
sketch19.MapMode = "FlatFace"
sketch19.AttachmentOffset = App.Placement(App.Vector(0, 0, 6.8), App.Rotation())
sketch19.addGeometry([
    Part.LineSegment(App.Vector(3, 58, 0), App.Vector(3, 5, 0)),
    Part.LineSegment(App.Vector(3, 5, 0), App.Vector(18, 5, 0)),
    Part.LineSegment(App.Vector(18, 5, 0), App.Vector(18, 58, 0)),
    Part.LineSegment(App.Vector(18, 58, 0), App.Vector(3, 58, 0)),
], False)
sketch19.addConstraint([
    Sketcher.Constraint("Coincident", 0, 2, 1, 1),
    Sketcher.Constraint("Coincident", 1, 2, 2, 1),
    Sketcher.Constraint("Coincident", 2, 2, 3, 1),
    Sketcher.Constraint("Coincident", 3, 2, 0, 1),
    Sketcher.Constraint("Vertical", 0),
    Sketcher.Constraint("Horizontal", 1),
    Sketcher.Constraint("Vertical", 2),
    Sketcher.Constraint("Horizontal", 3),
    Sketcher.Constraint("DistanceX", 1, 1, 1, 2, Q("15 mm")),
    Sketcher.Constraint("DistanceY", 0, 2, 0, 1, Q("53 mm")),
    Sketcher.Constraint("DistanceX", -1, 1, 0, 2, Q("3 mm")),
    Sketcher.Constraint("DistanceY", -1, 1, 0, 2, Q("5 mm")),
])
pad19 = body19.newObject("PartDesign::Pad", "Pad018")
pad19.Profile = sketch19
pad19.Length = 0.5
body20 = doc.addObject("PartDesign::Body", "Body019")

sketch20 = body20.newObject("Sketcher::SketchObject", "Sketch019")
sketch20.AttachmentSupport = (doc.getObject("XY_Plane019"), [""])
sketch20.MapMode = "FlatFace"
sketch20.AttachmentOffset = App.Placement(App.Vector(0, 0, 5.3), App.Rotation())
sketch20.addGeometry([
    Part.LineSegment(App.Vector(0, 39, 0), App.Vector(0, 0, 0)),
    Part.LineSegment(App.Vector(0, 0, 0), App.Vector(56, 0, 0)),
    Part.LineSegment(App.Vector(56, 0, 0), App.Vector(56, 39, 0)),
    Part.LineSegment(App.Vector(56, 39, 0), App.Vector(0, 39, 0)),
], False)
sketch20.addConstraint([
    Sketcher.Constraint("Coincident", 0, 2, 1, 1),
    Sketcher.Constraint("Coincident", 1, 2, 2, 1),
    Sketcher.Constraint("Coincident", 2, 2, 3, 1),
    Sketcher.Constraint("Coincident", 3, 2, 0, 1),
    Sketcher.Constraint("Vertical", 0),
    Sketcher.Constraint("Horizontal", 1),
    Sketcher.Constraint("Vertical", 2),
    Sketcher.Constraint("Horizontal", 3),
    Sketcher.Constraint("Coincident", 0, 2, -1, 1),
    Sketcher.Constraint("DistanceY", 0, 2, 0, 1, Q("39 mm")),
    Sketcher.Constraint("DistanceX", 1, 1, 1, 2, Q("56.3 mm")),
])
pad20 = body20.newObject("PartDesign::Pad", "Pad019")
pad20.Profile = sketch20
pad20.Length = 2
doc.recompute()

chamfer = body20.newObject("PartDesign::Chamfer", "Chamfer")
chamfer.Base = (pad20, edges_at(pad20, [(0, 19.5, 7.3), (56.3, 19.5, 7.3)]))
chamfer.Size = 1.5
body21 = doc.addObject("PartDesign::Body", "Body020")

sketch21 = body21.newObject("Sketcher::SketchObject", "Sketch020")
sketch21.AttachmentSupport = (doc.getObject("XY_Plane020"), [""])
sketch21.MapMode = "FlatFace"
sketch21.AttachmentOffset = App.Placement(App.Vector(0, 0, 5.8), App.Rotation())
sketch21.addGeometry([
    Part.LineSegment(App.Vector(3, 64, 0), App.Vector(3, 55, 0)),
    Part.LineSegment(App.Vector(3, 55, 0), App.Vector(18, 55, 0)),
    Part.LineSegment(App.Vector(18, 55, 0), App.Vector(18, 64, 0)),
    Part.LineSegment(App.Vector(18, 64, 0), App.Vector(3, 64, 0)),
], False)
sketch21.addConstraint([
    Sketcher.Constraint("Coincident", 0, 2, 1, 1),
    Sketcher.Constraint("Coincident", 1, 2, 2, 1),
    Sketcher.Constraint("Coincident", 2, 2, 3, 1),
    Sketcher.Constraint("Coincident", 3, 2, 0, 1),
    Sketcher.Constraint("Vertical", 0),
    Sketcher.Constraint("Horizontal", 1),
    Sketcher.Constraint("Vertical", 2),
    Sketcher.Constraint("Horizontal", 3),
    Sketcher.Constraint("DistanceX", 1, 1, 1, 2, Q("15 mm")),
    Sketcher.Constraint("DistanceX", -1, 1, 0, 2, Q("3 mm")),
    Sketcher.Constraint("DistanceY", -1, 1, 0, 2, Q("55 mm")),
    Sketcher.Constraint("DistanceY", 0, 2, 0, 1, Q("9.25 mm")),
])
pad21 = body21.newObject("PartDesign::Pad", "Pad020")
pad21.Profile = sketch21
pad21.Length = 1.5
body22 = doc.addObject("PartDesign::Body", "Body021")

sketch22 = body22.newObject("Sketcher::SketchObject", "Sketch021")
sketch22.AttachmentSupport = (doc.getObject("XY_Plane021"), [""])
sketch22.MapMode = "FlatFace"
sketch22.AttachmentOffset = App.Placement(App.Vector(0, 0, 5.8), App.Rotation())
sketch22.addGeometry([
    Part.LineSegment(App.Vector(2, 64, 0), App.Vector(2, 55, 0)),
    Part.LineSegment(App.Vector(2, 55, 0), App.Vector(19, 55, 0)),
    Part.LineSegment(App.Vector(19, 55, 0), App.Vector(19, 64, 0)),
    Part.LineSegment(App.Vector(19, 64, 0), App.Vector(2, 64, 0)),
], False)
sketch22.addConstraint([
    Sketcher.Constraint("Coincident", 0, 2, 1, 1),
    Sketcher.Constraint("Coincident", 1, 2, 2, 1),
    Sketcher.Constraint("Coincident", 2, 2, 3, 1),
    Sketcher.Constraint("Coincident", 3, 2, 0, 1),
    Sketcher.Constraint("Vertical", 0),
    Sketcher.Constraint("Horizontal", 1),
    Sketcher.Constraint("Vertical", 2),
    Sketcher.Constraint("Horizontal", 3),
    Sketcher.Constraint("DistanceX", 1, 1, 1, 2, Q("17 mm")),
    Sketcher.Constraint("DistanceX", -1, 1, 0, 2, Q("2 mm")),
    Sketcher.Constraint("DistanceY", -1, 1, 0, 2, Q("55 mm")),
    Sketcher.Constraint("DistanceY", 0, 2, 0, 1, Q("9.25 mm")),
])
pad22 = body22.newObject("PartDesign::Pad", "Pad021")
pad22.Profile = sketch22
pad22.Length = 1.5
body23 = doc.addObject("PartDesign::Body", "Body022")

sketch23 = body23.newObject("Sketcher::SketchObject", "Sketch022")
sketch23.AttachmentSupport = (doc.getObject("XY_Plane022"), [""])
sketch23.MapMode = "FlatFace"
sketch23.addGeometry([
    Part.LineSegment(App.Vector(52, 72, 0), App.Vector(52, 62, 0)),
    Part.LineSegment(App.Vector(52, 62, 0), App.Vector(62, 62, 0)),
    Part.LineSegment(App.Vector(62, 62, 0), App.Vector(62, 72, 0)),
    Part.LineSegment(App.Vector(62, 72, 0), App.Vector(52, 72, 0)),
], False)
sketch23.addConstraint([
    Sketcher.Constraint("Coincident", 0, 2, 1, 1),
    Sketcher.Constraint("Coincident", 1, 2, 2, 1),
    Sketcher.Constraint("Coincident", 2, 2, 3, 1),
    Sketcher.Constraint("Coincident", 3, 2, 0, 1),
    Sketcher.Constraint("Vertical", 0),
    Sketcher.Constraint("Horizontal", 1),
    Sketcher.Constraint("Vertical", 2),
    Sketcher.Constraint("Horizontal", 3),
    Sketcher.Constraint("Equal", 3, 0),
    Sketcher.Constraint("DistanceX", 1, 1, 1, 2, Q("10 mm")),
    Sketcher.Constraint("DistanceX", -1, 1, 0, 2, Q("51.8 mm")),
    Sketcher.Constraint("DistanceY", -1, 1, 0, 2, Q("61.75 mm")),
])
pad23 = body23.newObject("PartDesign::Pad", "Pad022")
pad23.Profile = sketch23
pad23.Length = 10
body24 = doc.addObject("PartDesign::Body", "Body023")

sketch24 = body24.newObject("Sketcher::SketchObject", "Sketch023")
sketch24.AttachmentSupport = (doc.getObject("XY_Plane023"), [""])
sketch24.MapMode = "FlatFace"
sketch24.AttachmentOffset = App.Placement(App.Vector(0, 0, 5.3), App.Rotation())
sketch24.addGeometry([
    Part.LineSegment(App.Vector(0, 64, 0), App.Vector(0, 39, 0)),
    Part.LineSegment(App.Vector(0, 39, 0), App.Vector(56, 39, 0)),
    Part.LineSegment(App.Vector(56, 39, 0), App.Vector(56, 64, 0)),
    Part.LineSegment(App.Vector(56, 64, 0), App.Vector(0, 64, 0)),
], False)
sketch24.addConstraint([
    Sketcher.Constraint("Coincident", 0, 2, 1, 1),
    Sketcher.Constraint("Coincident", 1, 2, 2, 1),
    Sketcher.Constraint("Coincident", 2, 2, 3, 1),
    Sketcher.Constraint("Coincident", 3, 2, 0, 1),
    Sketcher.Constraint("Vertical", 0),
    Sketcher.Constraint("Horizontal", 1),
    Sketcher.Constraint("Vertical", 2),
    Sketcher.Constraint("Horizontal", 3),
    Sketcher.Constraint("PointOnObject", 0, 2, -2),
    Sketcher.Constraint("DistanceX", 1, 1, 1, 2, Q("56.3 mm")),
    Sketcher.Constraint("DistanceY", -1, 1, 0, 2, Q("39 mm")),
    Sketcher.Constraint("DistanceY", 0, 2, 0, 1, Q("25.25 mm")),
])
pad24 = body24.newObject("PartDesign::Pad", "Pad023")
pad24.Profile = sketch24
pad24.Length = 2
doc.recompute()

boolean2 = body24.newObject("PartDesign::Boolean", "Boolean001")
boolean2.Type = "Cut"
boolean2.addObjects([body23])
doc.recompute()

boolean3 = body24.newObject("PartDesign::Boolean", "Boolean002")
boolean3.Type = "Fuse"
boolean3.addObjects([body22])
doc.recompute()

boolean4 = body24.newObject("PartDesign::Boolean", "Boolean003")
boolean4.Type = "Cut"
boolean4.addObjects([body21])
doc.recompute()

boolean5 = body24.newObject("PartDesign::Boolean", "Boolean004")
boolean5.Type = "Fuse"
boolean5.addObjects([body20])
doc.recompute()

boolean6 = body24.newObject("PartDesign::Boolean", "Boolean005")
boolean6.Type = "Cut"
boolean6.addObjects([body19])
doc.recompute()

boolean7 = body24.newObject("PartDesign::Boolean", "Boolean006")
boolean7.Type = "Cut"
boolean7.addObjects([body18])
body25 = doc.addObject("PartDesign::Body", "Body024")

sketch25 = body25.newObject("Sketcher::SketchObject", "Sketch024")
sketch25.AttachmentSupport = (doc.getObject("XY_Plane024"), [""])
sketch25.MapMode = "FlatFace"
sketch25.addGeometry([
    Part.LineSegment(App.Vector(1, 60, 0), App.Vector(1, 0, 0)),
    Part.LineSegment(App.Vector(1, 0, 0), App.Vector(55, 0, 0)),
    Part.LineSegment(App.Vector(55, 0, 0), App.Vector(55, 60, 0)),
    Part.LineSegment(App.Vector(55, 60, 0), App.Vector(1, 60, 0)),
], False)
sketch25.addConstraint([
    Sketcher.Constraint("Coincident", 0, 2, 1, 1),
    Sketcher.Constraint("Coincident", 1, 2, 2, 1),
    Sketcher.Constraint("Coincident", 2, 2, 3, 1),
    Sketcher.Constraint("Coincident", 3, 2, 0, 1),
    Sketcher.Constraint("Vertical", 0),
    Sketcher.Constraint("Horizontal", 1),
    Sketcher.Constraint("Vertical", 2),
    Sketcher.Constraint("Horizontal", 3),
    Sketcher.Constraint("PointOnObject", 0, 2, -1),
    Sketcher.Constraint("DistanceX", 1, 1, 1, 2, Q("54.3 mm")),
    Sketcher.Constraint("DistanceX", -1, 1, 0, 2, Q("1 mm")),
    Sketcher.Constraint("DistanceY", 0, 2, 0, 1, Q("60.25 mm")),
])
pad25 = body25.newObject("PartDesign::Pad", "Pad024")
pad25.Profile = sketch25
pad25.Length = 5.3
body26 = doc.addObject("PartDesign::Body", "Body025")

sketch26 = body26.newObject("Sketcher::SketchObject", "Sketch025")
sketch26.AttachmentSupport = (doc.getObject("XY_Plane025"), [""])
sketch26.MapMode = "FlatFace"
sketch26.addGeometry([
    Part.LineSegment(App.Vector(51.8, 64.2, 0), App.Vector(51.8, 61.8, 0)),
    Part.LineSegment(App.Vector(51.8, 61.8, 0), App.Vector(56.3, 61.8, 0)),
    Part.LineSegment(App.Vector(56.3, 61.8, 0), App.Vector(56.3, 64.2, 0)),
    Part.LineSegment(App.Vector(56.3, 64.2, 0), App.Vector(51.8, 64.2, 0)),
], False)
sketch26.addConstraint([
    Sketcher.Constraint("Coincident", 0, 2, 1, 1),
    Sketcher.Constraint("Coincident", 1, 2, 2, 1),
    Sketcher.Constraint("Coincident", 2, 2, 3, 1),
    Sketcher.Constraint("Coincident", 3, 2, 0, 1),
    Sketcher.Constraint("Vertical", 0),
    Sketcher.Constraint("Horizontal", 1),
    Sketcher.Constraint("Vertical", 2),
    Sketcher.Constraint("Horizontal", 3),
    Sketcher.Constraint("DistanceX", 1, 1, 1, 2, Q("4.5 mm")),
    Sketcher.Constraint("DistanceY", 0, 2, 0, 1, Q("2.5 mm")),
    Sketcher.Constraint("DistanceX", -1, 1, 0, 2, Q("51.8 mm")),
    Sketcher.Constraint("DistanceY", -1, 1, 0, 2, Q("61.75 mm")),
])
pad26 = body26.newObject("PartDesign::Pad", "Pad025")
pad26.Profile = sketch26
pad26.Length = 5.3
body27 = doc.addObject("PartDesign::Body", "Body026")

sketch27 = body27.newObject("Sketcher::SketchObject", "Sketch026")
sketch27.AttachmentSupport = (doc.getObject("XY_Plane026"), [""])
sketch27.MapMode = "FlatFace"
sketch27.addGeometry([
    Part.LineSegment(App.Vector(0, 64, 0), App.Vector(0, 0, 0)),
    Part.LineSegment(App.Vector(0, 0, 0), App.Vector(56, 0, 0)),
    Part.LineSegment(App.Vector(56, 0, 0), App.Vector(56, 64, 0)),
    Part.LineSegment(App.Vector(56, 64, 0), App.Vector(0, 64, 0)),
], False)
sketch27.addConstraint([
    Sketcher.Constraint("Coincident", 0, 2, 1, 1),
    Sketcher.Constraint("Coincident", 1, 2, 2, 1),
    Sketcher.Constraint("Coincident", 2, 2, 3, 1),
    Sketcher.Constraint("Coincident", 3, 2, 0, 1),
    Sketcher.Constraint("Vertical", 0),
    Sketcher.Constraint("Horizontal", 1),
    Sketcher.Constraint("Vertical", 2),
    Sketcher.Constraint("Horizontal", 3),
    Sketcher.Constraint("Coincident", 0, 2, -1, 1),
    Sketcher.Constraint("DistanceX", 1, 1, 1, 2, Q("56.3 mm")),
    Sketcher.Constraint("DistanceY", 0, 2, 0, 1, Q("64.25 mm")),
])
pad27 = body27.newObject("PartDesign::Pad", "Pad026")
pad27.Profile = sketch27
pad27.Length = 5.3
doc.recompute()

boolean8 = body27.newObject("PartDesign::Boolean", "Boolean007")
boolean8.Type = "Cut"
boolean8.addObjects([body26])
doc.recompute()

boolean9 = body27.newObject("PartDesign::Boolean", "Boolean008")
boolean9.Type = "Cut"
boolean9.addObjects([body25])
body28 = doc.addObject("PartDesign::Body", "Body027")

sketch28 = body28.newObject("Sketcher::SketchObject", "Sketch027")
sketch28.AttachmentSupport = (doc.getObject("XY_Plane027"), [""])
sketch28.MapMode = "FlatFace"
sketch28.addGeometry([
    Part.LineSegment(App.Vector(51.3, 33.2, 0), App.Vector(51.3, 25.2, 0)),
    Part.LineSegment(App.Vector(51.3, 25.2, 0), App.Vector(55.3, 25.2, 0)),
    Part.LineSegment(App.Vector(55.3, 25.2, 0), App.Vector(55.3, 33.2, 0)),
    Part.LineSegment(App.Vector(55.3, 33.2, 0), App.Vector(51.3, 33.2, 0)),
], False)
sketch28.addConstraint([
    Sketcher.Constraint("Coincident", 0, 2, 1, 1),
    Sketcher.Constraint("Coincident", 1, 2, 2, 1),
    Sketcher.Constraint("Coincident", 2, 2, 3, 1),
    Sketcher.Constraint("Coincident", 3, 2, 0, 1),
    Sketcher.Constraint("Vertical", 0),
    Sketcher.Constraint("Horizontal", 1),
    Sketcher.Constraint("Vertical", 2),
    Sketcher.Constraint("Horizontal", 3),
    Sketcher.Constraint("DistanceX", 1, 1, 1, 2, Q("4 mm")),
    Sketcher.Constraint("DistanceY", 0, 2, 0, 1, Q("8 mm")),
    Sketcher.Constraint("DistanceX", -1, 1, 0, 2, Q("51.3 mm")),
    Sketcher.Constraint("DistanceY", -1, 1, 0, 2, Q("25.2 mm")),
])
pad28 = body28.newObject("PartDesign::Pad", "Pad027")
pad28.Profile = sketch28
pad28.Length = 5.3
doc.recompute()

boolean10 = body28.newObject("PartDesign::Boolean", "Boolean009")
boolean10.Type = "Fuse"
boolean10.addObjects([body27])
doc.recompute()

boolean11 = body28.newObject("PartDesign::Boolean", "Boolean010")
boolean11.Type = "Fuse"
boolean11.addObjects([body24])
doc.recompute()

boolean12 = body28.newObject("PartDesign::Boolean", "Boolean011")
boolean12.Type = "Cut"
boolean12.addObjects([body17])

doc.recompute()
